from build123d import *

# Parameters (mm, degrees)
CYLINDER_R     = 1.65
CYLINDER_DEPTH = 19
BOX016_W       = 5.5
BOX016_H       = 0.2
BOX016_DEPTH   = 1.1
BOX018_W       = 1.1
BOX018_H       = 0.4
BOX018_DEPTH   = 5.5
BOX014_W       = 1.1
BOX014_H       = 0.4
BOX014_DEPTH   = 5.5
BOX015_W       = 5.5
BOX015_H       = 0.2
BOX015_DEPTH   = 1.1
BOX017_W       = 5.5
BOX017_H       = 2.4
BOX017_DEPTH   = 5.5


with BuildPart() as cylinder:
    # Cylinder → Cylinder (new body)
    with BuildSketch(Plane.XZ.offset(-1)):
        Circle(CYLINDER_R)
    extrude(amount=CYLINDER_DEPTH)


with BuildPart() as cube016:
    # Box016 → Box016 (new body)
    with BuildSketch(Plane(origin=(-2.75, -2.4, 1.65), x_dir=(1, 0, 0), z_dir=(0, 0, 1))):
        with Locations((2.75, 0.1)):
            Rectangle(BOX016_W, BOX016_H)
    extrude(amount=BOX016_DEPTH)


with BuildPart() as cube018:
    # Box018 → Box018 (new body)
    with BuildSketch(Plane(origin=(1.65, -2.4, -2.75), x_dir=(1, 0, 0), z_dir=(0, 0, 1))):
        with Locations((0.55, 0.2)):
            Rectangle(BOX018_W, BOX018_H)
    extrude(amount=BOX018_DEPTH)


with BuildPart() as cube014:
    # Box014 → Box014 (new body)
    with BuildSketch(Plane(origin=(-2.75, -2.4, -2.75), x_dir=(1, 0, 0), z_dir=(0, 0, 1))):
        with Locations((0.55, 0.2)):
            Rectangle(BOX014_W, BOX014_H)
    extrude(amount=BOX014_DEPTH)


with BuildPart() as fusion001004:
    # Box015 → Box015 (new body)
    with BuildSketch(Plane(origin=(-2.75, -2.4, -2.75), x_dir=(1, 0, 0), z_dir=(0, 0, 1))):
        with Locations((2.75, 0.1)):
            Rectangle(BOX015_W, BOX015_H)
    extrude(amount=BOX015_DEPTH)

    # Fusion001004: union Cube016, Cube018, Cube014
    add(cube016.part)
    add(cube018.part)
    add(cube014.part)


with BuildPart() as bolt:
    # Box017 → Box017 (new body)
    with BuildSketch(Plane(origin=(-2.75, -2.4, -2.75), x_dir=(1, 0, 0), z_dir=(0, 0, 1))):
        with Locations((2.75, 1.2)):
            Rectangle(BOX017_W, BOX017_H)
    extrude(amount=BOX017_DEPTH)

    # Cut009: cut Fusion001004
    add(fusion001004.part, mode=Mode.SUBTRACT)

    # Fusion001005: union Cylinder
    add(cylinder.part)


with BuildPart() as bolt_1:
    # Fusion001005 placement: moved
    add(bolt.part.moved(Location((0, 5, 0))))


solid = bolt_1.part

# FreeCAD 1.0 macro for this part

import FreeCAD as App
import Part
import Sketcher
Q = App.Units.Quantity

doc = App.newDocument("Part")
body = doc.addObject("PartDesign::Body", "Body")

# Sketch on XZ plane
sketch1 = body.newObject("Sketcher::SketchObject", "Sketch")
sketch1.AttachmentSupport = (doc.getObject("XZ_Plane"), [""])
sketch1.MapMode = "FlatFace"
sketch1.AttachmentOffset = App.Placement(App.Vector(0, 0, -1), App.Rotation())
sketch1.addGeometry(Part.Circle(App.Vector(0, 0, 0), App.Vector(0, 0, 1), 1.65), False)
sketch1.addConstraint([
    Sketcher.Constraint("Coincident", 0, 3, -1, 1),
    Sketcher.Constraint("Diameter", 0, Q("3.3 mm")),
])
pad1 = body.newObject("PartDesign::Pad", "Pad")
pad1.Profile = sketch1
pad1.Length = 19
body2 = doc.addObject("PartDesign::Body", "Body001")

# Sketch on XY plane
sketch2 = body2.newObject("Sketcher::SketchObject", "Sketch001")
sketch2.AttachmentSupport = (doc.getObject("XY_Plane001"), [""])
sketch2.MapMode = "FlatFace"
sketch2.AttachmentOffset = App.Placement(App.Vector(0, 0, 1.65), App.Rotation())
sketch2.addGeometry([
    Part.LineSegment(App.Vector(-2.75, -2.2, 0), App.Vector(-2.75, -2.4, 0)),
    Part.LineSegment(App.Vector(-2.75, -2.4, 0), App.Vector(2.75, -2.4, 0)),
    Part.LineSegment(App.Vector(2.75, -2.4, 0), App.Vector(2.75, -2.2, 0)),
    Part.LineSegment(App.Vector(2.75, -2.2, 0), App.Vector(-2.75, -2.2, 0)),
], False)
sketch2.addConstraint([
    Sketcher.Constraint("Coincident", 0, 2, 1, 1),
    Sketcher.Constraint("Coincident", 1, 2, 2, 1),
    Sketcher.Constraint("Coincident", 2, 2, 3, 1),
    Sketcher.Constraint("Coincident", 3, 2, 0, 1),
    Sketcher.Constraint("Vertical", 0),
    Sketcher.Constraint("Horizontal", 1),
    Sketcher.Constraint("Vertical", 2),
    Sketcher.Constraint("Horizontal", 3),
    Sketcher.Constraint("DistanceX", 1, 1, 1, 2, Q("5.5 mm")),
    Sketcher.Constraint("DistanceY", 0, 2, 0, 1, Q("0.2 mm")),
    Sketcher.Constraint("DistanceY", 0, 2, -1, 1, Q("2.4 mm")),
    Sketcher.Constraint("DistanceX", 0, 2, -1, 1, Q("2.75 mm")),
])
pad2 = body2.newObject("PartDesign::Pad", "Pad001")
pad2.Profile = sketch2
pad2.Length = 1.1
body3 = doc.addObject("PartDesign::Body", "Body002")

# Sketch on XY plane
sketch3 = body3.newObject("Sketcher::SketchObject", "Sketch002")
sketch3.AttachmentSupport = (doc.getObject("XY_Plane002"), [""])
sketch3.MapMode = "FlatFace"
sketch3.AttachmentOffset = App.Placement(App.Vector(0, 0, -2.75), App.Rotation())
sketch3.addGeometry([
    Part.LineSegment(App.Vector(1.65, -2, 0), App.Vector(1.65, -2.4, 0)),
    Part.LineSegment(App.Vector(1.65, -2.4, 0), App.Vector(2.75, -2.4, 0)),
    Part.LineSegment(App.Vector(2.75, -2.4, 0), App.Vector(2.75, -2, 0)),
    Part.LineSegment(App.Vector(2.75, -2, 0), App.Vector(1.65, -2, 0)),
], False)
sketch3.addConstraint([
    Sketcher.Constraint("Coincident", 0, 2, 1, 1),
    Sketcher.Constraint("Coincident", 1, 2, 2, 1),
    Sketcher.Constraint("Coincident", 2, 2, 3, 1),
    Sketcher.Constraint("Coincident", 3, 2, 0, 1),
    Sketcher.Constraint("Vertical", 0),
    Sketcher.Constraint("Horizontal", 1),
    Sketcher.Constraint("Vertical", 2),
    Sketcher.Constraint("Horizontal", 3),
    Sketcher.Constraint("DistanceX", 1, 1, 1, 2, Q("1.1 mm")),
    Sketcher.Constraint("DistanceY", 0, 2, 0, 1, Q("0.4 mm")),
    Sketcher.Constraint("DistanceY", 2, 2, -1, 1, Q("2 mm")),
    Sketcher.Constraint("DistanceX", -1, 1, 0, 2, Q("1.65 mm")),
])
pad3 = body3.newObject("PartDesign::Pad", "Pad002")
pad3.Profile = sketch3
pad3.Length = 5.5
body4 = doc.addObject("PartDesign::Body", "Body003")

# Sketch on XY plane
sketch4 = body4.newObject("Sketcher::SketchObject", "Sketch003")
sketch4.AttachmentSupport = (doc.getObject("XY_Plane003"), [""])
sketch4.MapMode = "FlatFace"
sketch4.AttachmentOffset = App.Placement(App.Vector(0, 0, -2.75), App.Rotation())
sketch4.addGeometry([
    Part.LineSegment(App.Vector(-2.75, -2, 0), App.Vector(-2.75, -2.4, 0)),
    Part.LineSegment(App.Vector(-2.75, -2.4, 0), App.Vector(-1.65, -2.4, 0)),
    Part.LineSegment(App.Vector(-1.65, -2.4, 0), App.Vector(-1.65, -2, 0)),
    Part.LineSegment(App.Vector(-1.65, -2, 0), App.Vector(-2.75, -2, 0)),
], False)
sketch4.addConstraint([
    Sketcher.Constraint("Coincident", 0, 2, 1, 1),
    Sketcher.Constraint("Coincident", 1, 2, 2, 1),
    Sketcher.Constraint("Coincident", 2, 2, 3, 1),
    Sketcher.Constraint("Coincident", 3, 2, 0, 1),
    Sketcher.Constraint("Vertical", 0),
    Sketcher.Constraint("Horizontal", 1),
    Sketcher.Constraint("Vertical", 2),
    Sketcher.Constraint("Horizontal", 3),
    Sketcher.Constraint("DistanceX", 1, 1, 1, 2, Q("1.1 mm")),
    Sketcher.Constraint("DistanceY", 0, 2, 0, 1, Q("0.4 mm")),
    Sketcher.Constraint("DistanceY", 2, 2, -1, 1, Q("2 mm")),
    Sketcher.Constraint("DistanceX", 0, 2, -1, 1, Q("2.75 mm")),
])
pad4 = body4.newObject("PartDesign::Pad", "Pad003")
pad4.Profile = sketch4
pad4.Length = 5.5
body5 = doc.addObject("PartDesign::Body", "Body004")
body5.AllowCompound = True

# Sketch on XY plane
sketch5 = body5.newObject("Sketcher::SketchObject", "Sketch004")
sketch5.AttachmentSupport = (doc.getObject("XY_Plane004"), [""])
sketch5.MapMode = "FlatFace"
sketch5.AttachmentOffset = App.Placement(App.Vector(0, 0, -2.75), App.Rotation())
sketch5.addGeometry([
    Part.LineSegment(App.Vector(-2.75, -2.2, 0), App.Vector(-2.75, -2.4, 0)),
    Part.LineSegment(App.Vector(-2.75, -2.4, 0), App.Vector(2.75, -2.4, 0)),
    Part.LineSegment(App.Vector(2.75, -2.4, 0), App.Vector(2.75, -2.2, 0)),
    Part.LineSegment(App.Vector(2.75, -2.2, 0), App.Vector(-2.75, -2.2, 0)),
], False)
sketch5.addConstraint([
    Sketcher.Constraint("Coincident", 0, 2, 1, 1),
    Sketcher.Constraint("Coincident", 1, 2, 2, 1),
    Sketcher.Constraint("Coincident", 2, 2, 3, 1),
    Sketcher.Constraint("Coincident", 3, 2, 0, 1),
    Sketcher.Constraint("Vertical", 0),
    Sketcher.Constraint("Horizontal", 1),
    Sketcher.Constraint("Vertical", 2),
    Sketcher.Constraint("Horizontal", 3),
    Sketcher.Constraint("DistanceX", 1, 1, 1, 2, Q("5.5 mm")),
    Sketcher.Constraint("DistanceY", 0, 2, 0, 1, Q("0.2 mm")),
    Sketcher.Constraint("DistanceY", 0, 2, -1, 1, Q("2.4 mm")),
    Sketcher.Constraint("DistanceX", 0, 2, -1, 1, Q("2.75 mm")),
])
pad5 = body5.newObject("PartDesign::Pad", "Pad004")
pad5.Profile = sketch5
pad5.Length = 1.1
doc.recompute()

boolean = body5.newObject("PartDesign::Boolean", "Boolean")
boolean.Type = "Fuse"
boolean.addObjects([body2])
doc.recompute()

boolean2 = body5.newObject("PartDesign::Boolean", "Boolean001")
boolean2.Type = "Fuse"
boolean2.addObjects([body3])
doc.recompute()

boolean3 = body5.newObject("PartDesign::Boolean", "Boolean002")
boolean3.Type = "Fuse"
boolean3.addObjects([body4])
body6 = doc.addObject("PartDesign::Body", "Body005")

# Sketch on XY plane
sketch6 = body6.newObject("Sketcher::SketchObject", "Sketch005")
sketch6.AttachmentSupport = (doc.getObject("XY_Plane005"), [""])
sketch6.MapMode = "FlatFace"
sketch6.AttachmentOffset = App.Placement(App.Vector(0, 0, -2.75), App.Rotation())
sketch6.addGeometry([
    Part.LineSegment(App.Vector(-2.75, 0, 0), App.Vector(-2.75, -2.4, 0)),
    Part.LineSegment(App.Vector(-2.75, -2.4, 0), App.Vector(2.75, -2.4, 0)),
    Part.LineSegment(App.Vector(2.75, -2.4, 0), App.Vector(2.75, 0, 0)),
    Part.LineSegment(App.Vector(2.75, 0, 0), App.Vector(-2.75, 0, 0)),
], False)
sketch6.addConstraint([
    Sketcher.Constraint("Coincident", 0, 2, 1, 1),
    Sketcher.Constraint("Coincident", 1, 2, 2, 1),
    Sketcher.Constraint("Coincident", 2, 2, 3, 1),
    Sketcher.Constraint("Coincident", 3, 2, 0, 1),
    Sketcher.Constraint("Vertical", 0),
    Sketcher.Constraint("Horizontal", 1),
    Sketcher.Constraint("Vertical", 2),
    Sketcher.Constraint("Horizontal", 3),
    Sketcher.Constraint("Symmetric", 2, 2, 3, 2, -1, 1),
    Sketcher.Constraint("DistanceX", 1, 1, 1, 2, Q("5.5 mm")),
    Sketcher.Constraint("DistanceY", 0, 2, 0, 1, Q("2.4 mm")),
])
pad6 = body6.newObject("PartDesign::Pad", "Pad005")
pad6.Profile = sketch6
pad6.Length = 5.5
doc.recompute()

boolean4 = body6.newObject("PartDesign::Boolean", "Boolean003")
boolean4.Type = "Cut"
boolean4.addObjects([body5])
doc.recompute()

boolean5 = body6.newObject("PartDesign::Boolean", "Boolean004")
boolean5.Type = "Fuse"
boolean5.addObjects([body])
body7 = doc.addObject("PartDesign::Body", "Body006")
doc.recompute()

body6.Placement = App.Placement(App.Vector(0, 5, 0), App.Rotation(App.Vector(0, 0, 1), 0))
boolean6 = body7.newObject("PartDesign::Boolean", "Boolean005")
boolean6.Type = "Fuse"
boolean6.addObjects([body6])

doc.recompute()
